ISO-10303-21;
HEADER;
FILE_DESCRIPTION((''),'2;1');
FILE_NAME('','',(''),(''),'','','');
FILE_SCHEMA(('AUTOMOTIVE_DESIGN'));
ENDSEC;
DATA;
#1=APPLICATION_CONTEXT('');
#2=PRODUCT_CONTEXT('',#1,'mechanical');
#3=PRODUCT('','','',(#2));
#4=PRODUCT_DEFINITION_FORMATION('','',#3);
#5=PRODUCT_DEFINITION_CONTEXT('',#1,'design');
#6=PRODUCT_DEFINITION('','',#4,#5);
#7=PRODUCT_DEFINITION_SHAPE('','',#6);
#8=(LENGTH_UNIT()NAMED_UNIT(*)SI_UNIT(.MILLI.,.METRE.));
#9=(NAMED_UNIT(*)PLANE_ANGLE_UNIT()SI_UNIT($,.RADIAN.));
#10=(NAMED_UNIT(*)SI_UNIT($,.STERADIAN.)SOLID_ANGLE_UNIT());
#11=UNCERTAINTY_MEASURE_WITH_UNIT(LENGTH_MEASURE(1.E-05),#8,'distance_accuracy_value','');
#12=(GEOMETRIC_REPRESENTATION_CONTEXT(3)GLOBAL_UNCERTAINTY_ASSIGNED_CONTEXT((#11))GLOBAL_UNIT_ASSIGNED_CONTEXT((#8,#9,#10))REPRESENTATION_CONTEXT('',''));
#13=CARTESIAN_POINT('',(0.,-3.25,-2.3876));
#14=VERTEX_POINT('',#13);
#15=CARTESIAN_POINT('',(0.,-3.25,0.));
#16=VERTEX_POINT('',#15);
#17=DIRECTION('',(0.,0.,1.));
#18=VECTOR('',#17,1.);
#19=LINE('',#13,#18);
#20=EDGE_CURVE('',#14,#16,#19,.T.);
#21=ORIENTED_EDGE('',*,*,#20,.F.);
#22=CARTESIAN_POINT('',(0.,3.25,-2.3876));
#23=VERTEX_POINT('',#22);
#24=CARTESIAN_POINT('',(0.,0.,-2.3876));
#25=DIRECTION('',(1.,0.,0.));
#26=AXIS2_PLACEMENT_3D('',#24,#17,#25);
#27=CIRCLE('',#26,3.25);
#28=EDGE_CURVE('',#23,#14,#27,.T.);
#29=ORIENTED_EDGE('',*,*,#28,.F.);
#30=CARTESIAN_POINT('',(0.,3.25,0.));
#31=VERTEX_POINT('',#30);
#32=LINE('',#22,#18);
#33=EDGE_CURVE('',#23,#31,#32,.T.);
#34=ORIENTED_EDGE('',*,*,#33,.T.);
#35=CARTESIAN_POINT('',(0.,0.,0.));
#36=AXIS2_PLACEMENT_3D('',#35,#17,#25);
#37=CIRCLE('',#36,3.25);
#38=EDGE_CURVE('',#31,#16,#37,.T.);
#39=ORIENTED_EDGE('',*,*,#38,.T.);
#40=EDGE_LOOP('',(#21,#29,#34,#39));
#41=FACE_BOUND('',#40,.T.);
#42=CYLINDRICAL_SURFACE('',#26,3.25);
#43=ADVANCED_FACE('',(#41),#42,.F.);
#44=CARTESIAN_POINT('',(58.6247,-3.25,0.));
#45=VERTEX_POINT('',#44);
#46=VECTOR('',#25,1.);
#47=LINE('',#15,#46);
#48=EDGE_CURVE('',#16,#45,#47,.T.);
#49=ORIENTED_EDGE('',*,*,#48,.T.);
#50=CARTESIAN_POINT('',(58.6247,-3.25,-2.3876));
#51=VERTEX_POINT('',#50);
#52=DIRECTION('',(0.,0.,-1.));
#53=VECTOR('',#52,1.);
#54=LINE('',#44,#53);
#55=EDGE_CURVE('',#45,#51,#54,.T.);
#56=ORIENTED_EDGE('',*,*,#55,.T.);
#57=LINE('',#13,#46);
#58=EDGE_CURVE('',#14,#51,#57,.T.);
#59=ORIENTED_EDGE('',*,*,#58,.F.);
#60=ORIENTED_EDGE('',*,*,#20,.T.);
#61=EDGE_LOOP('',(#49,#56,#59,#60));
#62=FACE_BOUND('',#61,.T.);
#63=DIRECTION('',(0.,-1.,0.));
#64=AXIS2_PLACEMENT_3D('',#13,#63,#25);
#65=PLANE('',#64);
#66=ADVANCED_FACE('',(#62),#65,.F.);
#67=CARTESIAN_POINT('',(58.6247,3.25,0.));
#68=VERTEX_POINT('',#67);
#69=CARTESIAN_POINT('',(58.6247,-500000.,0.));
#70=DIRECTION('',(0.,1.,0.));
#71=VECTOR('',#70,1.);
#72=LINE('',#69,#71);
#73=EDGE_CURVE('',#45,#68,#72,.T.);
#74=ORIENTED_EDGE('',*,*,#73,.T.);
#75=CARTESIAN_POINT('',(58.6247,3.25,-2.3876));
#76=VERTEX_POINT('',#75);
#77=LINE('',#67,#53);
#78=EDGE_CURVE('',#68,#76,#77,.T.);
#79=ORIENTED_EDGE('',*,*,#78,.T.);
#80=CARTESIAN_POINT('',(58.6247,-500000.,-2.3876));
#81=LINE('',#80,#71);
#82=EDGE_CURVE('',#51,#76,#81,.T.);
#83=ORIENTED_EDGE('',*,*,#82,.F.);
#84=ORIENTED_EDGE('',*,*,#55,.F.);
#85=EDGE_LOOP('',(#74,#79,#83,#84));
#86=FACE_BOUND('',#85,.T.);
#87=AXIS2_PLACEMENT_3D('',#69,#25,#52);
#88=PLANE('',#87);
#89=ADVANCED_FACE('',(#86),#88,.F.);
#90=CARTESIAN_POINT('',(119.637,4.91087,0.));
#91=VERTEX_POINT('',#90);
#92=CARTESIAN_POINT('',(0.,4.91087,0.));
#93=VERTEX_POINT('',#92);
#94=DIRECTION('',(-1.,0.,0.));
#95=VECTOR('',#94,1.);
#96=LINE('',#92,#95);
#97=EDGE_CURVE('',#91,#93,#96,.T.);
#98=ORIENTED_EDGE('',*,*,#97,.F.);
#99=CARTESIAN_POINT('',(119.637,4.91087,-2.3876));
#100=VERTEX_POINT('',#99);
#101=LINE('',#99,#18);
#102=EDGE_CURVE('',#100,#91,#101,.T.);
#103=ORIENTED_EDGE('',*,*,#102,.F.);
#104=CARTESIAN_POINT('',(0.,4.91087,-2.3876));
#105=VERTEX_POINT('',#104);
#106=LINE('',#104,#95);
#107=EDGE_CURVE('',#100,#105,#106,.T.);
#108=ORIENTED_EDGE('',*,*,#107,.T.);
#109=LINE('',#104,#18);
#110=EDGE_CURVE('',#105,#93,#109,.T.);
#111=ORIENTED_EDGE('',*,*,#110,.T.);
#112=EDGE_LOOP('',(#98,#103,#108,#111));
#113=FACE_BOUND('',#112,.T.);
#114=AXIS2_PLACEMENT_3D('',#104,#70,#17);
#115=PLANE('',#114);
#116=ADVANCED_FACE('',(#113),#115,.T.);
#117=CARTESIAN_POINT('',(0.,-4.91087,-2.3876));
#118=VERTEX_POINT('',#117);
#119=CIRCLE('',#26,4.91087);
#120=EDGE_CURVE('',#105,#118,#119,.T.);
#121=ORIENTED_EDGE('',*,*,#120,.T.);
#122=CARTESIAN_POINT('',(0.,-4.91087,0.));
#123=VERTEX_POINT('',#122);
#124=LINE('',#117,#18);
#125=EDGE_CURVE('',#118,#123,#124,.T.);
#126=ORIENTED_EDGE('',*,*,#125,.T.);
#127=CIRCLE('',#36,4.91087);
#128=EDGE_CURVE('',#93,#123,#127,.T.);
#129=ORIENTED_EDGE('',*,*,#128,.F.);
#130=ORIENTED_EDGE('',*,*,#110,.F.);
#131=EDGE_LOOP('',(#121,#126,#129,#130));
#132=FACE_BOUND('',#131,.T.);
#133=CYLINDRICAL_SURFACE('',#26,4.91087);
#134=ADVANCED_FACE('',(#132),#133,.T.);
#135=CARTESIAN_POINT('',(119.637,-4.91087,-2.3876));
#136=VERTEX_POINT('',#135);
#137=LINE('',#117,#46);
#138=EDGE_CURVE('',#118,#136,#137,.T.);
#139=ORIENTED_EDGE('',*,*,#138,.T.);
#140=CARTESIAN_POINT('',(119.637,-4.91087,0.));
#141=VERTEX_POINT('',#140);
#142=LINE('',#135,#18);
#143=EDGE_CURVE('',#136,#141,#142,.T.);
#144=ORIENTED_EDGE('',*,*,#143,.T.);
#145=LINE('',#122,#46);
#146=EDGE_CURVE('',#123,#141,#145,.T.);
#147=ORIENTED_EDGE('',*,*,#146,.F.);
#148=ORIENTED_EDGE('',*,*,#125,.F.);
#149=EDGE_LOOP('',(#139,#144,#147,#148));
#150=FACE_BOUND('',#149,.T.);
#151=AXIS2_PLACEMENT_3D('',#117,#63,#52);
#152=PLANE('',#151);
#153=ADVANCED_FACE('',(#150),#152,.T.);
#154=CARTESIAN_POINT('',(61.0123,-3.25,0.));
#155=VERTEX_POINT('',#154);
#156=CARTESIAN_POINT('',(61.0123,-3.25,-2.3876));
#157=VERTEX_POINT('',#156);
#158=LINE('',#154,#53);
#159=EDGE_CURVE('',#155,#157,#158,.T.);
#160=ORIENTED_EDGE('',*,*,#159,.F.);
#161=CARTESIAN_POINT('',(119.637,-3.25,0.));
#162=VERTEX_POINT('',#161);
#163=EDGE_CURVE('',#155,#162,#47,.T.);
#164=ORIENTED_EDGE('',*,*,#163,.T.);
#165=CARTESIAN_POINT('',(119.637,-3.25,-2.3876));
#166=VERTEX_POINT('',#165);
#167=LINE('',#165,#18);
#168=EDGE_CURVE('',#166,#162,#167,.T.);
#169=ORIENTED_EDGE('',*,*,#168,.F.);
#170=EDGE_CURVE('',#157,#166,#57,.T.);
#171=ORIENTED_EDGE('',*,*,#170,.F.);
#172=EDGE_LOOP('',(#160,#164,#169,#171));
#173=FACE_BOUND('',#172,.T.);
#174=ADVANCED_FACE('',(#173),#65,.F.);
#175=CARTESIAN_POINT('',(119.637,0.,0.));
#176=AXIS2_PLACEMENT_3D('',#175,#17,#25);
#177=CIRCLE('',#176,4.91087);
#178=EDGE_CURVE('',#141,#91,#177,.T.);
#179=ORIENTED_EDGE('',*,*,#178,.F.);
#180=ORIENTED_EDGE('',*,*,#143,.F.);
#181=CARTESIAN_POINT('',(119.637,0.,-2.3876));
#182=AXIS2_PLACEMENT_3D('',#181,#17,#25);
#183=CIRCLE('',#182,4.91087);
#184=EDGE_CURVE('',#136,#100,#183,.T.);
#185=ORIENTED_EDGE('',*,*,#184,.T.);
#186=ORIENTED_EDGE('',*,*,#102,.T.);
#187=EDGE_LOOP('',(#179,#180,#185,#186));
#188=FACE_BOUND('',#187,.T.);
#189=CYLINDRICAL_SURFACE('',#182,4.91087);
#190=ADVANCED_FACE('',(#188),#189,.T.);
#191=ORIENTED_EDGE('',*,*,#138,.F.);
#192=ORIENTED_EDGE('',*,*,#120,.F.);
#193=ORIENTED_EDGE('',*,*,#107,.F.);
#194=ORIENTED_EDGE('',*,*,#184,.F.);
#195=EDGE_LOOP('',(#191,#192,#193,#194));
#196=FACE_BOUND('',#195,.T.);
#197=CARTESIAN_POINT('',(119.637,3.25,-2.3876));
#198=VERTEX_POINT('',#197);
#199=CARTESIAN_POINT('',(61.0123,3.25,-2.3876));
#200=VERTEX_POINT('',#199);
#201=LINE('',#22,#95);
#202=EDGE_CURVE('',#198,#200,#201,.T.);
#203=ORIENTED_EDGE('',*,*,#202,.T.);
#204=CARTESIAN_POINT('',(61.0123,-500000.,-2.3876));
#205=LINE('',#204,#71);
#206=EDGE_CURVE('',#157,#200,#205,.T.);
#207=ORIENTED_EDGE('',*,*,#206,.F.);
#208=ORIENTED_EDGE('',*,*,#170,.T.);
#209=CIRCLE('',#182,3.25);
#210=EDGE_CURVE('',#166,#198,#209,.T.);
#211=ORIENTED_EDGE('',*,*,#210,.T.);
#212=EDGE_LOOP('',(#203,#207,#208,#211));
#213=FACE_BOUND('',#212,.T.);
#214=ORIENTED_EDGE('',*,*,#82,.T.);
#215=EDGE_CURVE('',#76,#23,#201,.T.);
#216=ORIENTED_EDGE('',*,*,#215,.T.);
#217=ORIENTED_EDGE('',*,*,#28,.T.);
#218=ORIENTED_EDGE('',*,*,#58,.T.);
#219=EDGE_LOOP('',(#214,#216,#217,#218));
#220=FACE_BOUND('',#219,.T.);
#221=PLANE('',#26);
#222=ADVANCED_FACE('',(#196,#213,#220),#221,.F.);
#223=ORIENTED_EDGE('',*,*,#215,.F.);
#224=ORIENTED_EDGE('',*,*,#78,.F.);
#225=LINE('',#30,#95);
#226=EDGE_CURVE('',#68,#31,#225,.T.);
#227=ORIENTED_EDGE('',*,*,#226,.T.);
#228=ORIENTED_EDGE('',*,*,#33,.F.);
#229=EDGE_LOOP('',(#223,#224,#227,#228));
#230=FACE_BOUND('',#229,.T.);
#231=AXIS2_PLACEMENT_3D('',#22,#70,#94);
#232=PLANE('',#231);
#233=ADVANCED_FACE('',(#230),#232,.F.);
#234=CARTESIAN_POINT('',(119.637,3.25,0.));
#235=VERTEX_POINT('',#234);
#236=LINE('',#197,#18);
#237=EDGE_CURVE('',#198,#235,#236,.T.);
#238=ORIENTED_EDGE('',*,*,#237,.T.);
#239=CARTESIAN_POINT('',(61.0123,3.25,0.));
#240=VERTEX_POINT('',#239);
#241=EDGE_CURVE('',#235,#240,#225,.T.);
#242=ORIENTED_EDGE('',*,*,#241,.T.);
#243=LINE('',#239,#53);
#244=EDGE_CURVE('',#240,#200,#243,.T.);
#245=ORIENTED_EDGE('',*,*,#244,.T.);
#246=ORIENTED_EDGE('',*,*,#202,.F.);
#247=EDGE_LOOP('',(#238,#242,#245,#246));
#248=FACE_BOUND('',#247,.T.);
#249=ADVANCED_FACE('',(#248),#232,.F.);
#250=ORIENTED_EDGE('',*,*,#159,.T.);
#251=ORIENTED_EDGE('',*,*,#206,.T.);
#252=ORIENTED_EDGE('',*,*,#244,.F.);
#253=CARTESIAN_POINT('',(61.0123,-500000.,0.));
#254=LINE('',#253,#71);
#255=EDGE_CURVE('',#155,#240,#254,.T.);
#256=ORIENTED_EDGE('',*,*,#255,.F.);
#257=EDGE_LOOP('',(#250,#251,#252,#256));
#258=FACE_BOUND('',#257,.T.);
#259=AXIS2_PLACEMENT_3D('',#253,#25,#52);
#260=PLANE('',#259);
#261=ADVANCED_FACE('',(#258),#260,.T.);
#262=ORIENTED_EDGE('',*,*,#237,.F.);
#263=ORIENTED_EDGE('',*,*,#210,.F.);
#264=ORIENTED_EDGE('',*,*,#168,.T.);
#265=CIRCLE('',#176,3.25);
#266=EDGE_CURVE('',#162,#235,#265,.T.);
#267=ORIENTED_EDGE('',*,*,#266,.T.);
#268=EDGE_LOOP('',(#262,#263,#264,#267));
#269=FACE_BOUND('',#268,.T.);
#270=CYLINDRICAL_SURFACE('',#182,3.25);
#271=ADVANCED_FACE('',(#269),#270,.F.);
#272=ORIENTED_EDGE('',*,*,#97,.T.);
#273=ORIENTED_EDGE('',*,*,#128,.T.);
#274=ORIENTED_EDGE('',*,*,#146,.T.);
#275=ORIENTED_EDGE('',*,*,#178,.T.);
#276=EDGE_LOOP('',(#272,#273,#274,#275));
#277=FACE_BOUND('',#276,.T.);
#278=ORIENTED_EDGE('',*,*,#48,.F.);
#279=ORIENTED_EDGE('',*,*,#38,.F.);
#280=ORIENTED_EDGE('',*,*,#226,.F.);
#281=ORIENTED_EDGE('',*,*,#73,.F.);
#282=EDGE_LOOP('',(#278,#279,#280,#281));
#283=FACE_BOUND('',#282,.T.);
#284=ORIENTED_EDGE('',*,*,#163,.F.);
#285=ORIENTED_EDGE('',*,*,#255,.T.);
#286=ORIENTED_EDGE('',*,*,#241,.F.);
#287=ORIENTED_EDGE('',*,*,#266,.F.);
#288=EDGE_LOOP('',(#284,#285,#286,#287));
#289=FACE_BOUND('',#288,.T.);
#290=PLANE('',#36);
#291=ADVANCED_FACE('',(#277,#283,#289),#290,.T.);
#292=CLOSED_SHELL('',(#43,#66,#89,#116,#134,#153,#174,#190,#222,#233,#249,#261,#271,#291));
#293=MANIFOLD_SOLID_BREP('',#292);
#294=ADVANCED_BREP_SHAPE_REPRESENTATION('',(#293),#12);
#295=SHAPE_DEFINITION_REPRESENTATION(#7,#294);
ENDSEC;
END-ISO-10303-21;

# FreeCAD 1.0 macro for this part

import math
import FreeCAD as App
import Part
import Sketcher

V = App.Vector
Q = App.Units.Quantity


def add_polygon(sketch, points):
    """Adds a closed chain of lines whose ends are joined by coincident constraints."""
    first, n = sketch.GeometryCount, len(points)
    for a, b in zip(points, points[1:] + points[:1]):
        sketch.addGeometry(Part.LineSegment(App.Vector(*a, 0), App.Vector(*b, 0)), False)
    for i in range(n):
        sketch.addConstraint(Sketcher.Constraint("Coincident", first + i, 2, first + (i + 1) % n, 1))

doc = App.newDocument("Part")
body = doc.addObject("PartDesign::Body", "Body")

sketch1 = body.newObject("Sketcher::SketchObject", "Sketch")
sketch1.AttachmentSupport = (doc.getObject("XY_Plane"), [""])
sketch1.MapMode = "FlatFace"
sketch1.addGeometry(Part.LineSegment(V(119.6, 4.9, 0), V(0, 4.9, 0)), False)
sketch1.addGeometry(Part.ArcOfCircle(Part.Circle(V(0, 0, 0), V(0, 0, 1), 4.9), math.radians(90), math.radians(270)), False)
sketch1.addGeometry(Part.LineSegment(V(0, -4.9, 0), V(119.6, -4.9, 0)), False)
sketch1.addGeometry(Part.ArcOfCircle(Part.Circle(V(119.6, 0, 0), V(0, 0, 1), 4.9), math.radians(-90), math.radians(90)), False)
sketch1.addGeometry(Part.LineSegment(V(0, 3.2, 0), V(119.6, 3.2, 0)), False)
sketch1.addGeometry(Part.ArcOfCircle(Part.Circle(V(119.6, 0, 0), V(0, 0, 1), 3.2), math.radians(-90), math.radians(90)), False)
sketch1.addGeometry(Part.LineSegment(V(119.6, -3.2, 0), V(0, -3.2, 0)), False)
sketch1.addGeometry(Part.ArcOfCircle(Part.Circle(V(0, 0, 0), V(0, 0, 1), 3.2), math.radians(90), math.radians(270)), False)
sketch1.addConstraint(Sketcher.Constraint("Tangent", 0, 2, 1, 1))
sketch1.addConstraint(Sketcher.Constraint("Tangent", 1, 2, 2, 1))
sketch1.addConstraint(Sketcher.Constraint("Tangent", 2, 2, 3, 1))
sketch1.addConstraint(Sketcher.Constraint("Tangent", 3, 2, 0, 1))
sketch1.addConstraint(Sketcher.Constraint("Tangent", 4, 2, 5, 2))
sketch1.addConstraint(Sketcher.Constraint("Tangent", 5, 1, 6, 1))
sketch1.addConstraint(Sketcher.Constraint("Tangent", 6, 2, 7, 2))
sketch1.addConstraint(Sketcher.Constraint("Tangent", 7, 1, 4, 1))
sketch1.addConstraint(Sketcher.Constraint("Horizontal", 0))
sketch1.addConstraint(Sketcher.Constraint("Horizontal", 2))
sketch1.addConstraint(Sketcher.Constraint("Horizontal", 4))
sketch1.addConstraint(Sketcher.Constraint("Horizontal", 6))
sketch1.addConstraint(Sketcher.Constraint("Coincident", 1, 3, -1, 1))
sketch1.addConstraint(Sketcher.Constraint("Coincident", 7, 3, -1, 1))
sketch1.addConstraint(Sketcher.Constraint("Vertical", 5, 3, 2, 2))
sketch1.addConstraint(Sketcher.Constraint("Radius", 5, Q("3.25 mm")))
sketch1.addConstraint(Sketcher.Constraint("DistanceX", 0, 2, 0, 1, Q("119.637 mm")))
sketch1.addConstraint(Sketcher.Constraint("Radius", 1, Q("4.91087 mm")))
pad1 = body.newObject("PartDesign::Pad", "Pad")
pad1.Profile = sketch1
pad1.Length = 2.3876
pad1.Reversed = True

sketch2 = body.newObject("Sketcher::SketchObject", "Sketch001")
sketch2.AttachmentSupport = (doc.getObject("XZ_Plane"), [""])
sketch2.MapMode = "FlatFace"
add_polygon(sketch2, [(58.6, -2.4), (58.6, 0), (61, 0), (61, -2.4)])
sketch2.addConstraint(Sketcher.Constraint("Vertical", 0))
sketch2.addConstraint(Sketcher.Constraint("Horizontal", 1))
sketch2.addConstraint(Sketcher.Constraint("Vertical", 2))
sketch2.addConstraint(Sketcher.Constraint("Horizontal", 3))
sketch2.addConstraint(Sketcher.Constraint("PointOnObject", 0, 2, -1))
sketch2.addConstraint(Sketcher.Constraint("Equal", 3, 0))
sketch2.addConstraint(Sketcher.Constraint("DistanceX", 1, 1, 1, 2, Q("2.3876 mm")))
sketch2.addConstraint(Sketcher.Constraint("DistanceX", -1, 1, 0, 2, Q("58.6247 mm")))
pad2 = body.newObject("PartDesign::Pad", "Pad001")
pad2.Profile = sketch2
pad2.Type = "UpToFirst"
pad2.Reversed = True

sketch3 = body.newObject("Sketcher::SketchObject", "Sketch002")
sketch3.AttachmentSupport = (doc.getObject("XZ_Plane"), [""])
sketch3.MapMode = "FlatFace"
add_polygon(sketch3, [(58.6, -2.4), (58.6, 0), (61, 0), (61, -2.4)])
sketch3.addConstraint(Sketcher.Constraint("Vertical", 0))
sketch3.addConstraint(Sketcher.Constraint("Horizontal", 1))
sketch3.addConstraint(Sketcher.Constraint("Vertical", 2))
sketch3.addConstraint(Sketcher.Constraint("Horizontal", 3))
sketch3.addConstraint(Sketcher.Constraint("PointOnObject", 0, 2, -1))
sketch3.addConstraint(Sketcher.Constraint("Equal", 3, 0))
sketch3.addConstraint(Sketcher.Constraint("DistanceX", 1, 1, 1, 2, Q("2.3876 mm")))
sketch3.addConstraint(Sketcher.Constraint("DistanceX", -1, 1, 0, 2, Q("58.6247 mm")))
pad3 = body.newObject("PartDesign::Pad", "Pad002")
pad3.Profile = sketch3
pad3.Type = "UpToFirst"

doc.recompute()
